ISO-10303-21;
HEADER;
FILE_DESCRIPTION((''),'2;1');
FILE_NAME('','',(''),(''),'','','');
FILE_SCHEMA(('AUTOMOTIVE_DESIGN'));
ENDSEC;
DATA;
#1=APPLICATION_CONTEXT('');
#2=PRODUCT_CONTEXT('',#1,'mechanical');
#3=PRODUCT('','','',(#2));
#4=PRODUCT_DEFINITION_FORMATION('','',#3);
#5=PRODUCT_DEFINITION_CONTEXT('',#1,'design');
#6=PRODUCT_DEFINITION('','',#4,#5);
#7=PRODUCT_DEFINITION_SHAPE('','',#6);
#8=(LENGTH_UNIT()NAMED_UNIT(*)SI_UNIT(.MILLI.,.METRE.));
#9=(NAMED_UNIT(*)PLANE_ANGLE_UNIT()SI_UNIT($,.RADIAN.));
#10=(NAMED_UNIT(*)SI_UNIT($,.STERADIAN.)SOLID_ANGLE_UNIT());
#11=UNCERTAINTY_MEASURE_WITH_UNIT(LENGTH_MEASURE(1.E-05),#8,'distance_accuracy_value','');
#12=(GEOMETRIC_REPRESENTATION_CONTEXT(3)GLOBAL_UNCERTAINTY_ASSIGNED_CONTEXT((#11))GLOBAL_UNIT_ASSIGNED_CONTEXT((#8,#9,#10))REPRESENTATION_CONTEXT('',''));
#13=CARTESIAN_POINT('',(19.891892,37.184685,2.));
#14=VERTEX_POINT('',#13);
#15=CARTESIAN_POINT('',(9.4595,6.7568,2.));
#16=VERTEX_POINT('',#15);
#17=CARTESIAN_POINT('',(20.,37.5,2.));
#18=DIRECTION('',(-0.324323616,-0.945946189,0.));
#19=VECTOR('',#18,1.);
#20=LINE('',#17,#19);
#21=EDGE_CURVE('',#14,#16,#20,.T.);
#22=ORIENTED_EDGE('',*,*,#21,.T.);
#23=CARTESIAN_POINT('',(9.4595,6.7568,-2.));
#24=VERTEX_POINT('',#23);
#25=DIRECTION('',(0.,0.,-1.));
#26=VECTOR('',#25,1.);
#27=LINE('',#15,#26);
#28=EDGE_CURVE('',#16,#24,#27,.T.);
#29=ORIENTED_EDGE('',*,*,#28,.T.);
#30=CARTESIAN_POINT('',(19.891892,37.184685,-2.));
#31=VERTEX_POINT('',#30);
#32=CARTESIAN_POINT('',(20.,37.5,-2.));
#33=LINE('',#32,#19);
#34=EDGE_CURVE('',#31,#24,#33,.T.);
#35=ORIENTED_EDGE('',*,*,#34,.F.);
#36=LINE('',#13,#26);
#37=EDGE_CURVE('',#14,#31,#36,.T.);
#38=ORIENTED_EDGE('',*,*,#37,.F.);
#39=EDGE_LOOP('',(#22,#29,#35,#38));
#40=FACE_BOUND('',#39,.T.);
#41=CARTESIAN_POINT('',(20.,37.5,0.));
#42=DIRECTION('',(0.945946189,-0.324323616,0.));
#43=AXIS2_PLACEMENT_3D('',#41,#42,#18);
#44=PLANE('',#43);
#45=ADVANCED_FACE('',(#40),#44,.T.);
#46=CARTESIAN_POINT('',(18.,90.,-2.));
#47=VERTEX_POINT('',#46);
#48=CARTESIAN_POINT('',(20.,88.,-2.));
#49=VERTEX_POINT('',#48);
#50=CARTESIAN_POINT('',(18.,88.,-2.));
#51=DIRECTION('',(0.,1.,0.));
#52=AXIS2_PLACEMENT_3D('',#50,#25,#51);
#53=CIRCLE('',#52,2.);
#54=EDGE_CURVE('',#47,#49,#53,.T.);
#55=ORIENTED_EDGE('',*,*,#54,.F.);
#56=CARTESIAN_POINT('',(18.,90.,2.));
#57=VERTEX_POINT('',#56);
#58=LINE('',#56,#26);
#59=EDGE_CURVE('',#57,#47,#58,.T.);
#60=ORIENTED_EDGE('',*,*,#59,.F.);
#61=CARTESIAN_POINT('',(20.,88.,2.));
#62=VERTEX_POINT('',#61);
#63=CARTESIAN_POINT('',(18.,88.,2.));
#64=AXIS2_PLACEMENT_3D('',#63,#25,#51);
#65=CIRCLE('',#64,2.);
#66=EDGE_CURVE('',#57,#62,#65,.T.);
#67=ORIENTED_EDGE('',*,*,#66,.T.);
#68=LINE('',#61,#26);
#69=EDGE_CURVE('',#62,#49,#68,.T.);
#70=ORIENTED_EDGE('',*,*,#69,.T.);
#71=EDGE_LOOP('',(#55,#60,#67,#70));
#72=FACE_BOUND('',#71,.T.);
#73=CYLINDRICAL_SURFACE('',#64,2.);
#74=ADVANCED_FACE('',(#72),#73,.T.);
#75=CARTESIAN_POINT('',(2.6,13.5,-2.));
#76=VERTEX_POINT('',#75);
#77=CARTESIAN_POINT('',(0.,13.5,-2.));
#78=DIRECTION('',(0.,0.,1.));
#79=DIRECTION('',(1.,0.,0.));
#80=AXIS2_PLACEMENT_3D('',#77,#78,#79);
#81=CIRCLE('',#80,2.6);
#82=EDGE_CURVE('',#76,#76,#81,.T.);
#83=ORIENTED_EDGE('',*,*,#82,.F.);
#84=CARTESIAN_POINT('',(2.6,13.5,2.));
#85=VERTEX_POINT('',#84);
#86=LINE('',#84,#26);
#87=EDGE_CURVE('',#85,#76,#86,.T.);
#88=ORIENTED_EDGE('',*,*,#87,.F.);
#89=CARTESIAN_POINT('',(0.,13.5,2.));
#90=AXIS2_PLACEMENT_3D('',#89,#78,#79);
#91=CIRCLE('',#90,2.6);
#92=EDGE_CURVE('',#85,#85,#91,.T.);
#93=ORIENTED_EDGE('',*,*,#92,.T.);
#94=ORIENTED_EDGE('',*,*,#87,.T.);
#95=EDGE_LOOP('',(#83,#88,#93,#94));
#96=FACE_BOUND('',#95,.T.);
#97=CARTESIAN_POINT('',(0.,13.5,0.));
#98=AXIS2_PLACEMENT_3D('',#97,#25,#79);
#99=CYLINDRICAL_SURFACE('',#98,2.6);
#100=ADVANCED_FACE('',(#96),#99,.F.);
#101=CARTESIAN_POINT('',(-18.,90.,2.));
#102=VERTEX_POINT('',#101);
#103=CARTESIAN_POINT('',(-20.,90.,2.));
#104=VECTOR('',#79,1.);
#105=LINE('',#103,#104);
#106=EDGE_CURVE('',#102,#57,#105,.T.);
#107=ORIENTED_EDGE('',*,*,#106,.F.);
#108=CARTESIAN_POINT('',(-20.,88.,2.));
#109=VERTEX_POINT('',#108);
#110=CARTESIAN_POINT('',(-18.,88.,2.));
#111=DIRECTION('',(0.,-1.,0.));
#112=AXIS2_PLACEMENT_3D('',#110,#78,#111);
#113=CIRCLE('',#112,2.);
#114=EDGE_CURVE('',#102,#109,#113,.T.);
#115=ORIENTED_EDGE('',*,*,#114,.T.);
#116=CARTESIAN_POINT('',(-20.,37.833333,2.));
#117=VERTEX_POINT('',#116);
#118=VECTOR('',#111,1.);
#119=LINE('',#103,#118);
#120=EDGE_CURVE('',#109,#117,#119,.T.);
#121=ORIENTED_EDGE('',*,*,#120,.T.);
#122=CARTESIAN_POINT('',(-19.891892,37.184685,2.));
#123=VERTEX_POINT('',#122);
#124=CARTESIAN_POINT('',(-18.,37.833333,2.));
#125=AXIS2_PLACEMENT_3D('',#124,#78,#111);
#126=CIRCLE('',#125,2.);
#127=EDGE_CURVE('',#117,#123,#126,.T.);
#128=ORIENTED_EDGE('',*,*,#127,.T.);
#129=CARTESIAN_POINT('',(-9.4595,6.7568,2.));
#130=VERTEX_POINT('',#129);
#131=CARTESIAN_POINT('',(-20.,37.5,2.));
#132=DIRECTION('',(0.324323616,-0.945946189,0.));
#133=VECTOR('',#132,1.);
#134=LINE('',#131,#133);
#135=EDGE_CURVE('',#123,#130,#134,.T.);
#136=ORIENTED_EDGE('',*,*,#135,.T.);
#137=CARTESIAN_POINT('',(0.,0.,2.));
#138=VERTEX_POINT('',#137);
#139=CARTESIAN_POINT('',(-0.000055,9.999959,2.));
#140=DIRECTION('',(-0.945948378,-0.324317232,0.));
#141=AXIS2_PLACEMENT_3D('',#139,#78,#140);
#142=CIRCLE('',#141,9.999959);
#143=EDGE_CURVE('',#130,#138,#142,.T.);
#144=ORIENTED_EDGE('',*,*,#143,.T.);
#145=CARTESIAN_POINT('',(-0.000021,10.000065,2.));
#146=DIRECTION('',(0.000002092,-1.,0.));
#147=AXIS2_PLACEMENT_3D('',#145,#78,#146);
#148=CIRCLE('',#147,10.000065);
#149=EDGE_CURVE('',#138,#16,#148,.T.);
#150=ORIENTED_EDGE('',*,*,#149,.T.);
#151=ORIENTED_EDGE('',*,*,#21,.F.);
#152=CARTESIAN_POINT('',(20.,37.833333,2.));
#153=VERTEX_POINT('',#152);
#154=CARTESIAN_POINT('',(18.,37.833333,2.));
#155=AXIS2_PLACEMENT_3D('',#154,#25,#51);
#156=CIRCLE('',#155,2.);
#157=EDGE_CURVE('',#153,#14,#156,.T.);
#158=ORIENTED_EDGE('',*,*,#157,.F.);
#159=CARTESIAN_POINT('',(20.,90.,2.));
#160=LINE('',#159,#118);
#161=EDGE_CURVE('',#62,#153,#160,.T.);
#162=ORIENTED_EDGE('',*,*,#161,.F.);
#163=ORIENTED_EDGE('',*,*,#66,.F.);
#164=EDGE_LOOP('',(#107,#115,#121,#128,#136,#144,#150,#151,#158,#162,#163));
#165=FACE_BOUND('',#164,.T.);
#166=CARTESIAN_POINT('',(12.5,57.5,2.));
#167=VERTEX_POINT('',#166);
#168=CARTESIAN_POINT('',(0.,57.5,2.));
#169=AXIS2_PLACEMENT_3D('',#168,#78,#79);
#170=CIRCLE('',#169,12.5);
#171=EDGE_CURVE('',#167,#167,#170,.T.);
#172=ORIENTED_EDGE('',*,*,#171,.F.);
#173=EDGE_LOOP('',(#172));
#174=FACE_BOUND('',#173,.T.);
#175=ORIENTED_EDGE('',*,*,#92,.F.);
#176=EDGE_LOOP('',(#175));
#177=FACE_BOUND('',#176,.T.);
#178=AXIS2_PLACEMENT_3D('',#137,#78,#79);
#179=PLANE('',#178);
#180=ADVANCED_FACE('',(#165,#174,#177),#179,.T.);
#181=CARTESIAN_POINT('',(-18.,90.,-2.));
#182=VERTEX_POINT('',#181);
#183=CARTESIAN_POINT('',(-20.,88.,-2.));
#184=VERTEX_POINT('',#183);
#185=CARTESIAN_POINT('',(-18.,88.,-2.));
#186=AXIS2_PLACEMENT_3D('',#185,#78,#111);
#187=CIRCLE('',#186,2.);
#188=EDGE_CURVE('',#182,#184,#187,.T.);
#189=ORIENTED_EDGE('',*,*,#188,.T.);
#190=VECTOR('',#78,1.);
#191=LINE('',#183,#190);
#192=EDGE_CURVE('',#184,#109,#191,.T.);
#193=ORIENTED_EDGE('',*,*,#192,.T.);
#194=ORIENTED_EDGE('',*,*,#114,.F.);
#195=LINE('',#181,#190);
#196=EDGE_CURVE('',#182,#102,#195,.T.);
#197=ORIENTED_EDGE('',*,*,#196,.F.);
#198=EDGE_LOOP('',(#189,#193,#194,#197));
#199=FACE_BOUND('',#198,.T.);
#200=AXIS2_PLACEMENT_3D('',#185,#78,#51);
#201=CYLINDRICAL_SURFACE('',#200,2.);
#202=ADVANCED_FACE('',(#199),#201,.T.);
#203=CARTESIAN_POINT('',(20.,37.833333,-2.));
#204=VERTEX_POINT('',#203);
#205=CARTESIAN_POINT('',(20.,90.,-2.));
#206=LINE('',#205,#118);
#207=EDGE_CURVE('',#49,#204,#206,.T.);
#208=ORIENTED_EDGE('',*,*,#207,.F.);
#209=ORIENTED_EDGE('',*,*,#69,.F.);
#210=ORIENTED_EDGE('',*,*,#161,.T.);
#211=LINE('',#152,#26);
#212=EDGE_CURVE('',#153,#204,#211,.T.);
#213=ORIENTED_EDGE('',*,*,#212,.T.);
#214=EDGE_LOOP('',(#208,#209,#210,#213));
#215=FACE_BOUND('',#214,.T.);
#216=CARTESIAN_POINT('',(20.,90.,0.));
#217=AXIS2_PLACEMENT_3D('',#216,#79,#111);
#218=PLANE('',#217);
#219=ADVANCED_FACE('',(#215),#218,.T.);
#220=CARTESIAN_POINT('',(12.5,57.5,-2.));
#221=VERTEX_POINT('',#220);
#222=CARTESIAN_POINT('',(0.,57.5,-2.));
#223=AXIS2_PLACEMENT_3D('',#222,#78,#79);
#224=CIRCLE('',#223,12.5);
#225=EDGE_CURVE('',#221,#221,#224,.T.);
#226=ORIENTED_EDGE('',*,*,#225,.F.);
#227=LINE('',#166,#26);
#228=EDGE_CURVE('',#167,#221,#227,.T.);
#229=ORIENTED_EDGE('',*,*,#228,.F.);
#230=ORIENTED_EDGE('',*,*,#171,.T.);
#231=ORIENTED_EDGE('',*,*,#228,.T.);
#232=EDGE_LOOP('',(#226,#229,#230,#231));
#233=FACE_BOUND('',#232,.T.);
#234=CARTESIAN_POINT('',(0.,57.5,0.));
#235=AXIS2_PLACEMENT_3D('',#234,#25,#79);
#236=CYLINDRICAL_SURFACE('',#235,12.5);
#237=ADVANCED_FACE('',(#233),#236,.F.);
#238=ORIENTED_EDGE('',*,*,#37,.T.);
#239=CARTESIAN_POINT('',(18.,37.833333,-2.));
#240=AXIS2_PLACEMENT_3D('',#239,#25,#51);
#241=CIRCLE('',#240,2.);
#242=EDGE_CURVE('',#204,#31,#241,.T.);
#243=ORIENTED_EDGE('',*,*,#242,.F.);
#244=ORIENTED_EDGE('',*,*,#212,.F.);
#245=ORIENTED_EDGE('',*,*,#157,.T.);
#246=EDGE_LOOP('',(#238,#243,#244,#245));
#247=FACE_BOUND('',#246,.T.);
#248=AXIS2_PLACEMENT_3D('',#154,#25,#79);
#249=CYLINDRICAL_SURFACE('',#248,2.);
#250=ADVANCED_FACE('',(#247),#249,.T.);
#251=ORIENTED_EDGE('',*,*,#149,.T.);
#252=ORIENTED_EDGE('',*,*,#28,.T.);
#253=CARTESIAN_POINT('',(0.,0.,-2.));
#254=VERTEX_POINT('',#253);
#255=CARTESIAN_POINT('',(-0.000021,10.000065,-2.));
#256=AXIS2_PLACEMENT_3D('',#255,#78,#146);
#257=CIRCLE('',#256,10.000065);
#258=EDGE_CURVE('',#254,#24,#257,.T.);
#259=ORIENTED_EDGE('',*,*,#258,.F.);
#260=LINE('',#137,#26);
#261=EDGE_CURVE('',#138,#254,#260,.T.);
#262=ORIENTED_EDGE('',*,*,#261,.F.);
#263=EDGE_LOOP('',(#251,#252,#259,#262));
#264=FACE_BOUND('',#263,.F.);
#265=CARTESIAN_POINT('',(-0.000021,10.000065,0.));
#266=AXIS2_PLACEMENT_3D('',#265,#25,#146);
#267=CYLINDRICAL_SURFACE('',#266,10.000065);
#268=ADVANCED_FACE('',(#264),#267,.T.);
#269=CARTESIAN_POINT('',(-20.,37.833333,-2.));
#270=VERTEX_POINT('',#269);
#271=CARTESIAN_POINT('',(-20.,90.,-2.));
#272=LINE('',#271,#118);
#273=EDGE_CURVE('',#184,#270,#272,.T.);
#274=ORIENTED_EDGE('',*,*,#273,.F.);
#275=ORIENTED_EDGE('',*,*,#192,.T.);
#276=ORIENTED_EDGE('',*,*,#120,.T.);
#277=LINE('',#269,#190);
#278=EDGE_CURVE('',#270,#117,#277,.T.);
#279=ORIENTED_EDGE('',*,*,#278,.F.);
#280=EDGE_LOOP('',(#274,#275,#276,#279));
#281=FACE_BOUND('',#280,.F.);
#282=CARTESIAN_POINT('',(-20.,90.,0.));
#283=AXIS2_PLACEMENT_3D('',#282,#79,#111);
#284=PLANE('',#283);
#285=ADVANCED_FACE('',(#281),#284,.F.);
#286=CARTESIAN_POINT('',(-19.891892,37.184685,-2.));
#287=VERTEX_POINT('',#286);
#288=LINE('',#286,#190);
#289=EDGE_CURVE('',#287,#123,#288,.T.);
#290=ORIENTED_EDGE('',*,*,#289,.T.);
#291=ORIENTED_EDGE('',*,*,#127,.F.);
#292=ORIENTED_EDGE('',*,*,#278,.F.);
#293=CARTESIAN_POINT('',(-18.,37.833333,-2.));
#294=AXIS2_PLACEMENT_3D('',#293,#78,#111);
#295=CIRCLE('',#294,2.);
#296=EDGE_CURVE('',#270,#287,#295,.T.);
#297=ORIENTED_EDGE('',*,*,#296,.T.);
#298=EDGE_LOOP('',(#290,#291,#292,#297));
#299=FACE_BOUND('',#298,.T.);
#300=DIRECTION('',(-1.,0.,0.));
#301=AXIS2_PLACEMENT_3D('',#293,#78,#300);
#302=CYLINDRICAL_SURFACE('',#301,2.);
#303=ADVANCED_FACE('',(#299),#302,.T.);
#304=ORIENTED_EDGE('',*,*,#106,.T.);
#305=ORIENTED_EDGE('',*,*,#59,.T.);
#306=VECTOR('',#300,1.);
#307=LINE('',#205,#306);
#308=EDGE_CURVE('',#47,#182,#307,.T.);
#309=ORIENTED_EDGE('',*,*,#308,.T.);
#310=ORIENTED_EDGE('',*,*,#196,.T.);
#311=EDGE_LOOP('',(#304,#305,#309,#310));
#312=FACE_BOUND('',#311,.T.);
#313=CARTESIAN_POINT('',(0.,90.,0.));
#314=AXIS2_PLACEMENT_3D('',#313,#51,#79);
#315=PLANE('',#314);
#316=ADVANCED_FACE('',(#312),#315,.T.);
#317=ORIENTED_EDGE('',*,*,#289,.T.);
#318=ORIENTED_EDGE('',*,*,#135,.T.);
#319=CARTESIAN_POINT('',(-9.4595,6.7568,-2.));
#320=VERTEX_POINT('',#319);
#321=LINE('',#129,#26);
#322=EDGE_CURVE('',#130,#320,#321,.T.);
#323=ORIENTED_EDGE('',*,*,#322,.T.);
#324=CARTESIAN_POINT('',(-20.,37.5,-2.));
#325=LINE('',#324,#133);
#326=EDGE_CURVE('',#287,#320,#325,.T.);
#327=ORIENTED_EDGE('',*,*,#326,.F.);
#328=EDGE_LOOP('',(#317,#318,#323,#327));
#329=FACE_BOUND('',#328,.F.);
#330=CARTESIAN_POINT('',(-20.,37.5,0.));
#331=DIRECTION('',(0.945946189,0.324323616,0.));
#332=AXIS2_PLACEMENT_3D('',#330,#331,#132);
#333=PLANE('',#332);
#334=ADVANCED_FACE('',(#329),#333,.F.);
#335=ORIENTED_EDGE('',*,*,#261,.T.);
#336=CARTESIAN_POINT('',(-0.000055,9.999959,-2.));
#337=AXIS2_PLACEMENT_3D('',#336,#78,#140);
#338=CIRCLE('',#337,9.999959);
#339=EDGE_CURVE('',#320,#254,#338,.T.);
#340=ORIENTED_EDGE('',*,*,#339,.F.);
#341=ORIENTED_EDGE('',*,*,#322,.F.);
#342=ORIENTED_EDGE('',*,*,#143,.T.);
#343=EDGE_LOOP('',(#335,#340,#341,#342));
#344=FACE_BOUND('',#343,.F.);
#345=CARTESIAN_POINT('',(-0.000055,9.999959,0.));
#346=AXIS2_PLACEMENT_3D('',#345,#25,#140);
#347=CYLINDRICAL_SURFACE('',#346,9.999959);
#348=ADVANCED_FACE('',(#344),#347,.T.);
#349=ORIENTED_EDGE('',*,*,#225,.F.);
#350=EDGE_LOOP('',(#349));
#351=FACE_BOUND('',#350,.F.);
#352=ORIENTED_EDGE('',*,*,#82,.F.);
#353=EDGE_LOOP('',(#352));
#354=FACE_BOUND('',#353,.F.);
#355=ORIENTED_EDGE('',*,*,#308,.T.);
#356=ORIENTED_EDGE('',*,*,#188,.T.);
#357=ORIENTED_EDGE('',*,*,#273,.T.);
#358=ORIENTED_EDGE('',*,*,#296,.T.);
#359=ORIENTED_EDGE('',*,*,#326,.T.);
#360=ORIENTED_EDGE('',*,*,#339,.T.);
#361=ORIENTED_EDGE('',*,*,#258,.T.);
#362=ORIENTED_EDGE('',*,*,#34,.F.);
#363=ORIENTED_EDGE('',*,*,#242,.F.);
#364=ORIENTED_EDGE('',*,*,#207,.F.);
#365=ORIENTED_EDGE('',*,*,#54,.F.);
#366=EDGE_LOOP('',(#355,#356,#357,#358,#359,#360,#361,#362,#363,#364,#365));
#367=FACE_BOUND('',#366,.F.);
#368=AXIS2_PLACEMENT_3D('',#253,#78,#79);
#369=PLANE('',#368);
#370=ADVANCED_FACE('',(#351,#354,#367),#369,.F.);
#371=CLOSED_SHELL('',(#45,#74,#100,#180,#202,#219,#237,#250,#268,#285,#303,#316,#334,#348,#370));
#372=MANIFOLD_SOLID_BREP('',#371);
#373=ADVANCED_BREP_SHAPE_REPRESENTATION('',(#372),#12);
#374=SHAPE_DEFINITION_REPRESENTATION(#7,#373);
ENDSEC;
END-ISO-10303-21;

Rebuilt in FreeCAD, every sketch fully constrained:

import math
import FreeCAD as App
import Part
import Sketcher

V = App.Vector
Q = App.Units.Quantity


def edges_at(feature, points):
    """Names of the edges that pass closest to the given points."""
    edges = feature.Shape.Edges
    near = lambda p: min(range(len(edges)), key=lambda i: edges[i].distToShape(Part.Vertex(*p))[0])
    return sorted({f"Edge{near(p) + 1}" for p in points})

doc = App.newDocument("Part")
body = doc.addObject("PartDesign::Body", "Body")

# Sketch on XY plane
sketch1 = body.newObject("Sketcher::SketchObject", "Sketch")
sketch1.AttachmentSupport = (doc.getObject("XY_Plane"), [""])
sketch1.MapMode = "FlatFace"
sketch1.addGeometry(Part.LineSegment(V(20, 90, 0), V(-20, 90, 0)), False)
sketch1.addGeometry(Part.LineSegment(V(-20, 90, 0), V(-20, 37.5, 0)), False)
sketch1.addGeometry(Part.LineSegment(V(-20, 37.5, 0), V(-9.5, 6.8, 0)), False)
sketch1.addGeometry(Part.ArcOfCircle(Part.Circle(V(0, 10, 0), V(0, 0, 1), 10), math.radians(-161), math.radians(-90)), False)
sketch1.addGeometry(Part.ArcOfCircle(Part.Circle(V(0, 10, 0), V(0, 0, 1), 10), math.radians(-90), math.radians(-19)), False)
sketch1.addGeometry(Part.LineSegment(V(9.5, 6.8, 0), V(20, 37.5, 0)), False)
sketch1.addGeometry(Part.LineSegment(V(20, 37.5, 0), V(20, 90, 0)), False)
sketch1.addGeometry(Part.Circle(V(0, 13.5, 0), V(0, 0, 1), 2.6), False)
sketch1.addGeometry(Part.Circle(V(0, 57.5, 0), V(0, 0, 1), 12.5), False)
sketch1.addConstraint(Sketcher.Constraint("Coincident", 0, 2, 1, 1))
sketch1.addConstraint(Sketcher.Constraint("Coincident", 1, 2, 2, 1))
sketch1.addConstraint(Sketcher.Constraint("Tangent", 2, 2, 3, 1))
sketch1.addConstraint(Sketcher.Constraint("Tangent", 3, 2, 4, 1))
sketch1.addConstraint(Sketcher.Constraint("Tangent", 4, 2, 5, 1))
sketch1.addConstraint(Sketcher.Constraint("Coincident", 5, 2, 6, 1))
sketch1.addConstraint(Sketcher.Constraint("Coincident", 6, 2, 0, 1))
sketch1.addConstraint(Sketcher.Constraint("Horizontal", 0))
sketch1.addConstraint(Sketcher.Constraint("Vertical", 1))
sketch1.addConstraint(Sketcher.Constraint("Vertical", 6))
sketch1.addConstraint(Sketcher.Constraint("Coincident", 3, 2, -1, 1))
sketch1.addConstraint(Sketcher.Constraint("Equal", 3, 4))
sketch1.addConstraint(Sketcher.Constraint("Symmetric", 2, 2, 4, 2, -2))
sketch1.addConstraint(Sketcher.Constraint("PointOnObject", 7, 3, -2))
sketch1.addConstraint(Sketcher.Constraint("PointOnObject", 8, 3, -2))
sketch1.addConstraint(Sketcher.Constraint("Horizontal", 1, 2, 5, 2))
sketch1.addConstraint(Sketcher.Constraint("Diameter", 8, Q("25 mm")))
sketch1.addConstraint(Sketcher.Constraint("Radius", 3, Q("10 mm")))
sketch1.addConstraint(Sketcher.Constraint("Diameter", 7, Q("5.2 mm")))
sketch1.addConstraint(Sketcher.Constraint("DistanceY", 1, 2, 1, 1, Q("52.5 mm")))
sketch1.addConstraint(Sketcher.Constraint("DistanceX", 0, 2, -1, 1, Q("20 mm")))
sketch1.addConstraint(Sketcher.Constraint("DistanceY", 1, 2, 8, 3, Q("20 mm")))
sketch1.addConstraint(Sketcher.Constraint("Distance", 2, Q("32.5 mm")))
sketch1.addConstraint(Sketcher.Constraint("DistanceY", -1, 1, 7, 3, Q("13.5 mm")))
pad1 = body.newObject("PartDesign::Pad", "Pad")
pad1.Profile = sketch1
pad1.Length = 4
pad1.Midplane = True
doc.recompute()

fillet = body.newObject("PartDesign::Fillet", "Fillet")
fillet.Base = (pad1, edges_at(pad1, [
    (20, 37.5, 0),
    (20, 90, 0),
    (-20, 90, 0),
    (-20, 37.5, 1),
    (-20, 37.5, -1),
]))
fillet.Radius = 2

doc.recompute()
